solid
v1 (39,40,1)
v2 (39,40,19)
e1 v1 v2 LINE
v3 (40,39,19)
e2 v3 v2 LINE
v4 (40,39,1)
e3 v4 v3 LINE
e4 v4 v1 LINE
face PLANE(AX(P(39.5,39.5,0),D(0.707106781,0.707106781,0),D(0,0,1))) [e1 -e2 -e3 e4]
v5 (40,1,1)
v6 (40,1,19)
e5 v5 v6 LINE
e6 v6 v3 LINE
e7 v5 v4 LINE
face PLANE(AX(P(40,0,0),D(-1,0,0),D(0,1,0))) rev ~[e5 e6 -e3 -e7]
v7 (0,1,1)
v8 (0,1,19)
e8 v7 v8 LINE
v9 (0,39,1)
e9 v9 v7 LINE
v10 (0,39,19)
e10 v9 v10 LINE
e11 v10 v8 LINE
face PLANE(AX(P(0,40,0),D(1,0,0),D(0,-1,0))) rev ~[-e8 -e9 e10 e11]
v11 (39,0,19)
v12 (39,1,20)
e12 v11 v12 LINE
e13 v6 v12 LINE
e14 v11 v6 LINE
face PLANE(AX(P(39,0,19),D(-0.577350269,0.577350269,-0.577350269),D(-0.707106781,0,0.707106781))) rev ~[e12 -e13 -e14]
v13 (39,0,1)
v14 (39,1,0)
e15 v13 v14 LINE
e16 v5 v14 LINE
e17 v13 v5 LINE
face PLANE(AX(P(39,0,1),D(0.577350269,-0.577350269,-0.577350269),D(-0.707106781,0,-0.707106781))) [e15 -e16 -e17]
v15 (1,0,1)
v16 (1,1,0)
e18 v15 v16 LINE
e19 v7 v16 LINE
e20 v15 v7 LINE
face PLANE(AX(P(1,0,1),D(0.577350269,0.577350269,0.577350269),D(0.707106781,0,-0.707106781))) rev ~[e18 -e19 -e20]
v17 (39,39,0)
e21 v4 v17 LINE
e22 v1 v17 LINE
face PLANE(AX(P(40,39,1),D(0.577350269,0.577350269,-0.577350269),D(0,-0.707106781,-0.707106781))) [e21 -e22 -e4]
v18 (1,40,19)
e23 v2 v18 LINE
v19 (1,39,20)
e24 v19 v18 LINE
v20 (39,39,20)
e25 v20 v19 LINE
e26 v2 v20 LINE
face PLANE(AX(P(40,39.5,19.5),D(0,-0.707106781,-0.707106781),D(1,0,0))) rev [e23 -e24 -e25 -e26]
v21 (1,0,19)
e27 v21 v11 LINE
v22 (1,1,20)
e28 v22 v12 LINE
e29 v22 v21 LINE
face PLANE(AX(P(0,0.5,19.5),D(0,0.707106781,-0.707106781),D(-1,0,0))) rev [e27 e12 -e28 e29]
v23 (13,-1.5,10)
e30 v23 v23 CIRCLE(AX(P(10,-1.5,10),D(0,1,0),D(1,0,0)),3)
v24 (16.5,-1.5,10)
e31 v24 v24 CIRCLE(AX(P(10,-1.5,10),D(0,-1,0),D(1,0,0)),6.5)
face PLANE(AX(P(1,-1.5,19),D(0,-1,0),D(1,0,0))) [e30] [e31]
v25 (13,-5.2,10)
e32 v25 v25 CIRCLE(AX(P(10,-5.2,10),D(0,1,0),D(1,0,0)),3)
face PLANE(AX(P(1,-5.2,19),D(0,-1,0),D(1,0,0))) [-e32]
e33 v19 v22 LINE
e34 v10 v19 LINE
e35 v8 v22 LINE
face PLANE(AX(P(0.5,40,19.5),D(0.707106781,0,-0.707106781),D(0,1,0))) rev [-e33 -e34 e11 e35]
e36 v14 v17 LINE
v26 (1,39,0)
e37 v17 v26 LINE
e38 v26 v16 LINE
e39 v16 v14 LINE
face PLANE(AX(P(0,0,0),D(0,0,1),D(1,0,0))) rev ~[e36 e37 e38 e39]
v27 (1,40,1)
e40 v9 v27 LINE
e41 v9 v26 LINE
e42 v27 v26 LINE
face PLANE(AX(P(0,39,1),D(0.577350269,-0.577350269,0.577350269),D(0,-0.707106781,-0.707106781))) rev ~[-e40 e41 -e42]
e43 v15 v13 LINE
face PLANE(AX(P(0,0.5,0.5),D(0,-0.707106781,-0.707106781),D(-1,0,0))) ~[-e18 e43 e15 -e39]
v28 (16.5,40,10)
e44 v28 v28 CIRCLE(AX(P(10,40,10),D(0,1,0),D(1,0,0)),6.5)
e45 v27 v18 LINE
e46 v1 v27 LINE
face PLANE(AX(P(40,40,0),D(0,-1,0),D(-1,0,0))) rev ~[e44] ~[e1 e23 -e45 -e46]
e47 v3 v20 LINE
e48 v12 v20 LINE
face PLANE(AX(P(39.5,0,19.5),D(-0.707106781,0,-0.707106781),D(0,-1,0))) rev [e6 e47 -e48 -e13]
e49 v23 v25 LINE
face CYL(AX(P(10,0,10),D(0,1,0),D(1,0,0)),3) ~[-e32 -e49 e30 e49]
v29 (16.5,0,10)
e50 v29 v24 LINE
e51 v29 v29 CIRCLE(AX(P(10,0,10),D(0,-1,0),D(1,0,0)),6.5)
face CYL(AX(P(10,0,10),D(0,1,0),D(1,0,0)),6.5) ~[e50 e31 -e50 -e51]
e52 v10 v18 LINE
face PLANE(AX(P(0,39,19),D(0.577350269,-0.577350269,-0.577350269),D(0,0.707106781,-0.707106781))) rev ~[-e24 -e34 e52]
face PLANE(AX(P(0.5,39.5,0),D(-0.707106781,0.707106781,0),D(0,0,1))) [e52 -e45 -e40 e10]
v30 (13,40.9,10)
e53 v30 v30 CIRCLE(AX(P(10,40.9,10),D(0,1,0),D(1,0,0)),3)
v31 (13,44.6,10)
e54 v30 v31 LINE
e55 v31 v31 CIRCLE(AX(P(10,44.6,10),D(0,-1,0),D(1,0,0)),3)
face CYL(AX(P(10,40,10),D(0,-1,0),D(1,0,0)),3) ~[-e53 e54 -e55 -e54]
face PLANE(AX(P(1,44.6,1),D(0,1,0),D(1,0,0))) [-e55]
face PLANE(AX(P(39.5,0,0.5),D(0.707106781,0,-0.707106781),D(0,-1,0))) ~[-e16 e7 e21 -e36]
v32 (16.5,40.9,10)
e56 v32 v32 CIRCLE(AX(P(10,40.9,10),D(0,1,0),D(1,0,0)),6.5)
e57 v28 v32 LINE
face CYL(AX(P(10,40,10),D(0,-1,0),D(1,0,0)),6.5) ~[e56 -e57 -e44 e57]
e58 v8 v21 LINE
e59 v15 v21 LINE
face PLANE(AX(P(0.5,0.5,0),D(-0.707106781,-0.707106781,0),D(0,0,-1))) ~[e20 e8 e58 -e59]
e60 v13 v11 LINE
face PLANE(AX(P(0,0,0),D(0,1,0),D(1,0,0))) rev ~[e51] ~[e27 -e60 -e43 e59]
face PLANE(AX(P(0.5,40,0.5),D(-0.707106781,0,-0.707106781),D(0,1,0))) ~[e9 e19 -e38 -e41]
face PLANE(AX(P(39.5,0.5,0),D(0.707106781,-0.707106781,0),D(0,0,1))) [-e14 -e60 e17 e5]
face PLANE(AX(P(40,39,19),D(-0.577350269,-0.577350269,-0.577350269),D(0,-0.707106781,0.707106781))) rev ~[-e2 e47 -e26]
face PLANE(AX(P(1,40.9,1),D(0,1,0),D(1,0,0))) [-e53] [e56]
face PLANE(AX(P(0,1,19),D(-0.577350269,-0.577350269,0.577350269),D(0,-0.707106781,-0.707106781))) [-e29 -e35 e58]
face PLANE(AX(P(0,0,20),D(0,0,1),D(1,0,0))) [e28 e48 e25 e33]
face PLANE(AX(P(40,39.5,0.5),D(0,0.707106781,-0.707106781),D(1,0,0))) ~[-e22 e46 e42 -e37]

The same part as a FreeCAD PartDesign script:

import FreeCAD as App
import Part
import Sketcher
from FreeCAD import Vector
Q = App.Units.Quantity

doc = App.newDocument("Part")
body = doc.addObject("PartDesign::Body", "Body")

# Sketch on XY plane
sketch1 = doc.addObject("Sketcher::SketchObject", "Sketch")
body.addObject(sketch1)
sketch1.AttachmentSupport = (doc.XY_Plane, [""])
sketch1.MapMode = "FlatFace"
sketch1.addGeometry([
    Part.LineSegment(Vector(0, 40, 0), Vector(0, 0, 0)),
    Part.LineSegment(Vector(0, 0, 0), Vector(40, 0, 0)),
    Part.LineSegment(Vector(40, 0, 0), Vector(40, 40, 0)),
    Part.LineSegment(Vector(40, 40, 0), Vector(0, 40, 0)),
], False)
sketch1.addConstraint([
    Sketcher.Constraint("Coincident", 0, 2, 1, 1),
    Sketcher.Constraint("Coincident", 1, 2, 2, 1),
    Sketcher.Constraint("Coincident", 2, 2, 3, 1),
    Sketcher.Constraint("Coincident", 3, 2, 0, 1),
    Sketcher.Constraint("Vertical", 0),
    Sketcher.Constraint("Horizontal", 1),
    Sketcher.Constraint("Vertical", 2),
    Sketcher.Constraint("Horizontal", 3),
    Sketcher.Constraint("Coincident", 0, 2, -1, 1),
    Sketcher.Constraint("Equal", 3, 0),
    Sketcher.Constraint("DistanceX", 1, 1, 1, 2, Q("40 mm")),
])
pad1 = doc.addObject("PartDesign::Pad", "Pad")
body.addObject(pad1)
pad1.Profile = sketch1
pad1.Length = 20
doc.recompute()

chamfer = doc.addObject("PartDesign::Chamfer", "Chamfer")
body.addObject(chamfer)
chamfer.Base = (pad1, ["Edge1"])
chamfer.UseAllEdges = True
chamfer.Size = 1

# Sketch on XZ plane
sketch2 = doc.addObject("Sketcher::SketchObject", "Sketch001")
body.addObject(sketch2)
sketch2.AttachmentSupport = (doc.XZ_Plane, [""])
sketch2.MapMode = "FlatFace"
sketch2.AttachmentOffset = App.Placement(Vector(0, 0, -40), App.Rotation())
sketch2.addGeometry(Part.Circle(Vector(10, 10, 0), Vector(0, 0, 1), 3), False)
sketch2.addConstraint([
    Sketcher.Constraint("Diameter", 0, Q("6 mm")),
    Sketcher.Constraint("DistanceX", -1, 1, 0, 3, Q("10 mm")),
    Sketcher.Constraint("DistanceY", -1, 1, 0, 3, Q("10 mm")),
])
pad2 = doc.addObject("PartDesign::Pad", "Pad001")
body.addObject(pad2)
pad2.Profile = sketch2
pad2.Length = 4.6
pad2.Reversed = True

# Sketch on XZ plane
sketch3 = doc.addObject("Sketcher::SketchObject", "Sketch002")
body.addObject(sketch3)
sketch3.AttachmentSupport = (doc.XZ_Plane, [""])
sketch3.MapMode = "FlatFace"
sketch3.AttachmentOffset = App.Placement(Vector(0, 0, -40), App.Rotation())
sketch3.addGeometry([
    Part.Circle(Vector(10, 10, 0), Vector(0, 0, 1), 6.5),
    Part.Circle(Vector(10, 10, 0), Vector(0, 0, 1), 3),
], False)
sketch3.addConstraint([
    Sketcher.Constraint("Coincident", 1, 3, 0, 3),
    Sketcher.Constraint("Diameter", 0, Q("13 mm")),
    Sketcher.Constraint("Diameter", 1, Q("6 mm")),
    Sketcher.Constraint("DistanceX", -1, 1, 0, 3, Q("10 mm")),
    Sketcher.Constraint("DistanceY", -1, 1, 0, 3, Q("10 mm")),
])
pad3 = doc.addObject("PartDesign::Pad", "Pad002")
body.addObject(pad3)
pad3.Profile = sketch3
pad3.Length = 0.9
pad3.Reversed = True

# Sketch on XZ plane
sketch4 = doc.addObject("Sketcher::SketchObject", "Sketch003")
body.addObject(sketch4)
sketch4.AttachmentSupport = (doc.XZ_Plane, [""])
sketch4.MapMode = "FlatFace"
sketch4.addGeometry(Part.Circle(Vector(10, 10, 0), Vector(0, 0, 1), 3), False)
sketch4.addConstraint([
    Sketcher.Constraint("Diameter", 0, Q("6 mm")),
    Sketcher.Constraint("DistanceX", -1, 1, 0, 3, Q("10 mm")),
    Sketcher.Constraint("DistanceY", -1, 1, 0, 3, Q("10 mm")),
])
pad4 = doc.addObject("PartDesign::Pad", "Pad003")
body.addObject(pad4)
pad4.Profile = sketch4
pad4.Length = 5.2

# Sketch on XZ plane
sketch5 = doc.addObject("Sketcher::SketchObject", "Sketch004")
body.addObject(sketch5)
sketch5.AttachmentSupport = (doc.XZ_Plane, [""])
sketch5.MapMode = "FlatFace"
sketch5.addGeometry(Part.Circle(Vector(10, 10, 0), Vector(0, 0, 1), 6), False)
sketch5.addConstraint([
    Sketcher.Constraint("Diameter", 0, Q("13 mm")),
    Sketcher.Constraint("DistanceX", -1, 1, 0, 3, Q("10 mm")),
    Sketcher.Constraint("DistanceY", -1, 1, 0, 3, Q("10 mm")),
])
pad5 = doc.addObject("PartDesign::Pad", "Pad004")
body.addObject(pad5)
pad5.Profile = sketch5
pad5.Length = 1.5

doc.recompute()
